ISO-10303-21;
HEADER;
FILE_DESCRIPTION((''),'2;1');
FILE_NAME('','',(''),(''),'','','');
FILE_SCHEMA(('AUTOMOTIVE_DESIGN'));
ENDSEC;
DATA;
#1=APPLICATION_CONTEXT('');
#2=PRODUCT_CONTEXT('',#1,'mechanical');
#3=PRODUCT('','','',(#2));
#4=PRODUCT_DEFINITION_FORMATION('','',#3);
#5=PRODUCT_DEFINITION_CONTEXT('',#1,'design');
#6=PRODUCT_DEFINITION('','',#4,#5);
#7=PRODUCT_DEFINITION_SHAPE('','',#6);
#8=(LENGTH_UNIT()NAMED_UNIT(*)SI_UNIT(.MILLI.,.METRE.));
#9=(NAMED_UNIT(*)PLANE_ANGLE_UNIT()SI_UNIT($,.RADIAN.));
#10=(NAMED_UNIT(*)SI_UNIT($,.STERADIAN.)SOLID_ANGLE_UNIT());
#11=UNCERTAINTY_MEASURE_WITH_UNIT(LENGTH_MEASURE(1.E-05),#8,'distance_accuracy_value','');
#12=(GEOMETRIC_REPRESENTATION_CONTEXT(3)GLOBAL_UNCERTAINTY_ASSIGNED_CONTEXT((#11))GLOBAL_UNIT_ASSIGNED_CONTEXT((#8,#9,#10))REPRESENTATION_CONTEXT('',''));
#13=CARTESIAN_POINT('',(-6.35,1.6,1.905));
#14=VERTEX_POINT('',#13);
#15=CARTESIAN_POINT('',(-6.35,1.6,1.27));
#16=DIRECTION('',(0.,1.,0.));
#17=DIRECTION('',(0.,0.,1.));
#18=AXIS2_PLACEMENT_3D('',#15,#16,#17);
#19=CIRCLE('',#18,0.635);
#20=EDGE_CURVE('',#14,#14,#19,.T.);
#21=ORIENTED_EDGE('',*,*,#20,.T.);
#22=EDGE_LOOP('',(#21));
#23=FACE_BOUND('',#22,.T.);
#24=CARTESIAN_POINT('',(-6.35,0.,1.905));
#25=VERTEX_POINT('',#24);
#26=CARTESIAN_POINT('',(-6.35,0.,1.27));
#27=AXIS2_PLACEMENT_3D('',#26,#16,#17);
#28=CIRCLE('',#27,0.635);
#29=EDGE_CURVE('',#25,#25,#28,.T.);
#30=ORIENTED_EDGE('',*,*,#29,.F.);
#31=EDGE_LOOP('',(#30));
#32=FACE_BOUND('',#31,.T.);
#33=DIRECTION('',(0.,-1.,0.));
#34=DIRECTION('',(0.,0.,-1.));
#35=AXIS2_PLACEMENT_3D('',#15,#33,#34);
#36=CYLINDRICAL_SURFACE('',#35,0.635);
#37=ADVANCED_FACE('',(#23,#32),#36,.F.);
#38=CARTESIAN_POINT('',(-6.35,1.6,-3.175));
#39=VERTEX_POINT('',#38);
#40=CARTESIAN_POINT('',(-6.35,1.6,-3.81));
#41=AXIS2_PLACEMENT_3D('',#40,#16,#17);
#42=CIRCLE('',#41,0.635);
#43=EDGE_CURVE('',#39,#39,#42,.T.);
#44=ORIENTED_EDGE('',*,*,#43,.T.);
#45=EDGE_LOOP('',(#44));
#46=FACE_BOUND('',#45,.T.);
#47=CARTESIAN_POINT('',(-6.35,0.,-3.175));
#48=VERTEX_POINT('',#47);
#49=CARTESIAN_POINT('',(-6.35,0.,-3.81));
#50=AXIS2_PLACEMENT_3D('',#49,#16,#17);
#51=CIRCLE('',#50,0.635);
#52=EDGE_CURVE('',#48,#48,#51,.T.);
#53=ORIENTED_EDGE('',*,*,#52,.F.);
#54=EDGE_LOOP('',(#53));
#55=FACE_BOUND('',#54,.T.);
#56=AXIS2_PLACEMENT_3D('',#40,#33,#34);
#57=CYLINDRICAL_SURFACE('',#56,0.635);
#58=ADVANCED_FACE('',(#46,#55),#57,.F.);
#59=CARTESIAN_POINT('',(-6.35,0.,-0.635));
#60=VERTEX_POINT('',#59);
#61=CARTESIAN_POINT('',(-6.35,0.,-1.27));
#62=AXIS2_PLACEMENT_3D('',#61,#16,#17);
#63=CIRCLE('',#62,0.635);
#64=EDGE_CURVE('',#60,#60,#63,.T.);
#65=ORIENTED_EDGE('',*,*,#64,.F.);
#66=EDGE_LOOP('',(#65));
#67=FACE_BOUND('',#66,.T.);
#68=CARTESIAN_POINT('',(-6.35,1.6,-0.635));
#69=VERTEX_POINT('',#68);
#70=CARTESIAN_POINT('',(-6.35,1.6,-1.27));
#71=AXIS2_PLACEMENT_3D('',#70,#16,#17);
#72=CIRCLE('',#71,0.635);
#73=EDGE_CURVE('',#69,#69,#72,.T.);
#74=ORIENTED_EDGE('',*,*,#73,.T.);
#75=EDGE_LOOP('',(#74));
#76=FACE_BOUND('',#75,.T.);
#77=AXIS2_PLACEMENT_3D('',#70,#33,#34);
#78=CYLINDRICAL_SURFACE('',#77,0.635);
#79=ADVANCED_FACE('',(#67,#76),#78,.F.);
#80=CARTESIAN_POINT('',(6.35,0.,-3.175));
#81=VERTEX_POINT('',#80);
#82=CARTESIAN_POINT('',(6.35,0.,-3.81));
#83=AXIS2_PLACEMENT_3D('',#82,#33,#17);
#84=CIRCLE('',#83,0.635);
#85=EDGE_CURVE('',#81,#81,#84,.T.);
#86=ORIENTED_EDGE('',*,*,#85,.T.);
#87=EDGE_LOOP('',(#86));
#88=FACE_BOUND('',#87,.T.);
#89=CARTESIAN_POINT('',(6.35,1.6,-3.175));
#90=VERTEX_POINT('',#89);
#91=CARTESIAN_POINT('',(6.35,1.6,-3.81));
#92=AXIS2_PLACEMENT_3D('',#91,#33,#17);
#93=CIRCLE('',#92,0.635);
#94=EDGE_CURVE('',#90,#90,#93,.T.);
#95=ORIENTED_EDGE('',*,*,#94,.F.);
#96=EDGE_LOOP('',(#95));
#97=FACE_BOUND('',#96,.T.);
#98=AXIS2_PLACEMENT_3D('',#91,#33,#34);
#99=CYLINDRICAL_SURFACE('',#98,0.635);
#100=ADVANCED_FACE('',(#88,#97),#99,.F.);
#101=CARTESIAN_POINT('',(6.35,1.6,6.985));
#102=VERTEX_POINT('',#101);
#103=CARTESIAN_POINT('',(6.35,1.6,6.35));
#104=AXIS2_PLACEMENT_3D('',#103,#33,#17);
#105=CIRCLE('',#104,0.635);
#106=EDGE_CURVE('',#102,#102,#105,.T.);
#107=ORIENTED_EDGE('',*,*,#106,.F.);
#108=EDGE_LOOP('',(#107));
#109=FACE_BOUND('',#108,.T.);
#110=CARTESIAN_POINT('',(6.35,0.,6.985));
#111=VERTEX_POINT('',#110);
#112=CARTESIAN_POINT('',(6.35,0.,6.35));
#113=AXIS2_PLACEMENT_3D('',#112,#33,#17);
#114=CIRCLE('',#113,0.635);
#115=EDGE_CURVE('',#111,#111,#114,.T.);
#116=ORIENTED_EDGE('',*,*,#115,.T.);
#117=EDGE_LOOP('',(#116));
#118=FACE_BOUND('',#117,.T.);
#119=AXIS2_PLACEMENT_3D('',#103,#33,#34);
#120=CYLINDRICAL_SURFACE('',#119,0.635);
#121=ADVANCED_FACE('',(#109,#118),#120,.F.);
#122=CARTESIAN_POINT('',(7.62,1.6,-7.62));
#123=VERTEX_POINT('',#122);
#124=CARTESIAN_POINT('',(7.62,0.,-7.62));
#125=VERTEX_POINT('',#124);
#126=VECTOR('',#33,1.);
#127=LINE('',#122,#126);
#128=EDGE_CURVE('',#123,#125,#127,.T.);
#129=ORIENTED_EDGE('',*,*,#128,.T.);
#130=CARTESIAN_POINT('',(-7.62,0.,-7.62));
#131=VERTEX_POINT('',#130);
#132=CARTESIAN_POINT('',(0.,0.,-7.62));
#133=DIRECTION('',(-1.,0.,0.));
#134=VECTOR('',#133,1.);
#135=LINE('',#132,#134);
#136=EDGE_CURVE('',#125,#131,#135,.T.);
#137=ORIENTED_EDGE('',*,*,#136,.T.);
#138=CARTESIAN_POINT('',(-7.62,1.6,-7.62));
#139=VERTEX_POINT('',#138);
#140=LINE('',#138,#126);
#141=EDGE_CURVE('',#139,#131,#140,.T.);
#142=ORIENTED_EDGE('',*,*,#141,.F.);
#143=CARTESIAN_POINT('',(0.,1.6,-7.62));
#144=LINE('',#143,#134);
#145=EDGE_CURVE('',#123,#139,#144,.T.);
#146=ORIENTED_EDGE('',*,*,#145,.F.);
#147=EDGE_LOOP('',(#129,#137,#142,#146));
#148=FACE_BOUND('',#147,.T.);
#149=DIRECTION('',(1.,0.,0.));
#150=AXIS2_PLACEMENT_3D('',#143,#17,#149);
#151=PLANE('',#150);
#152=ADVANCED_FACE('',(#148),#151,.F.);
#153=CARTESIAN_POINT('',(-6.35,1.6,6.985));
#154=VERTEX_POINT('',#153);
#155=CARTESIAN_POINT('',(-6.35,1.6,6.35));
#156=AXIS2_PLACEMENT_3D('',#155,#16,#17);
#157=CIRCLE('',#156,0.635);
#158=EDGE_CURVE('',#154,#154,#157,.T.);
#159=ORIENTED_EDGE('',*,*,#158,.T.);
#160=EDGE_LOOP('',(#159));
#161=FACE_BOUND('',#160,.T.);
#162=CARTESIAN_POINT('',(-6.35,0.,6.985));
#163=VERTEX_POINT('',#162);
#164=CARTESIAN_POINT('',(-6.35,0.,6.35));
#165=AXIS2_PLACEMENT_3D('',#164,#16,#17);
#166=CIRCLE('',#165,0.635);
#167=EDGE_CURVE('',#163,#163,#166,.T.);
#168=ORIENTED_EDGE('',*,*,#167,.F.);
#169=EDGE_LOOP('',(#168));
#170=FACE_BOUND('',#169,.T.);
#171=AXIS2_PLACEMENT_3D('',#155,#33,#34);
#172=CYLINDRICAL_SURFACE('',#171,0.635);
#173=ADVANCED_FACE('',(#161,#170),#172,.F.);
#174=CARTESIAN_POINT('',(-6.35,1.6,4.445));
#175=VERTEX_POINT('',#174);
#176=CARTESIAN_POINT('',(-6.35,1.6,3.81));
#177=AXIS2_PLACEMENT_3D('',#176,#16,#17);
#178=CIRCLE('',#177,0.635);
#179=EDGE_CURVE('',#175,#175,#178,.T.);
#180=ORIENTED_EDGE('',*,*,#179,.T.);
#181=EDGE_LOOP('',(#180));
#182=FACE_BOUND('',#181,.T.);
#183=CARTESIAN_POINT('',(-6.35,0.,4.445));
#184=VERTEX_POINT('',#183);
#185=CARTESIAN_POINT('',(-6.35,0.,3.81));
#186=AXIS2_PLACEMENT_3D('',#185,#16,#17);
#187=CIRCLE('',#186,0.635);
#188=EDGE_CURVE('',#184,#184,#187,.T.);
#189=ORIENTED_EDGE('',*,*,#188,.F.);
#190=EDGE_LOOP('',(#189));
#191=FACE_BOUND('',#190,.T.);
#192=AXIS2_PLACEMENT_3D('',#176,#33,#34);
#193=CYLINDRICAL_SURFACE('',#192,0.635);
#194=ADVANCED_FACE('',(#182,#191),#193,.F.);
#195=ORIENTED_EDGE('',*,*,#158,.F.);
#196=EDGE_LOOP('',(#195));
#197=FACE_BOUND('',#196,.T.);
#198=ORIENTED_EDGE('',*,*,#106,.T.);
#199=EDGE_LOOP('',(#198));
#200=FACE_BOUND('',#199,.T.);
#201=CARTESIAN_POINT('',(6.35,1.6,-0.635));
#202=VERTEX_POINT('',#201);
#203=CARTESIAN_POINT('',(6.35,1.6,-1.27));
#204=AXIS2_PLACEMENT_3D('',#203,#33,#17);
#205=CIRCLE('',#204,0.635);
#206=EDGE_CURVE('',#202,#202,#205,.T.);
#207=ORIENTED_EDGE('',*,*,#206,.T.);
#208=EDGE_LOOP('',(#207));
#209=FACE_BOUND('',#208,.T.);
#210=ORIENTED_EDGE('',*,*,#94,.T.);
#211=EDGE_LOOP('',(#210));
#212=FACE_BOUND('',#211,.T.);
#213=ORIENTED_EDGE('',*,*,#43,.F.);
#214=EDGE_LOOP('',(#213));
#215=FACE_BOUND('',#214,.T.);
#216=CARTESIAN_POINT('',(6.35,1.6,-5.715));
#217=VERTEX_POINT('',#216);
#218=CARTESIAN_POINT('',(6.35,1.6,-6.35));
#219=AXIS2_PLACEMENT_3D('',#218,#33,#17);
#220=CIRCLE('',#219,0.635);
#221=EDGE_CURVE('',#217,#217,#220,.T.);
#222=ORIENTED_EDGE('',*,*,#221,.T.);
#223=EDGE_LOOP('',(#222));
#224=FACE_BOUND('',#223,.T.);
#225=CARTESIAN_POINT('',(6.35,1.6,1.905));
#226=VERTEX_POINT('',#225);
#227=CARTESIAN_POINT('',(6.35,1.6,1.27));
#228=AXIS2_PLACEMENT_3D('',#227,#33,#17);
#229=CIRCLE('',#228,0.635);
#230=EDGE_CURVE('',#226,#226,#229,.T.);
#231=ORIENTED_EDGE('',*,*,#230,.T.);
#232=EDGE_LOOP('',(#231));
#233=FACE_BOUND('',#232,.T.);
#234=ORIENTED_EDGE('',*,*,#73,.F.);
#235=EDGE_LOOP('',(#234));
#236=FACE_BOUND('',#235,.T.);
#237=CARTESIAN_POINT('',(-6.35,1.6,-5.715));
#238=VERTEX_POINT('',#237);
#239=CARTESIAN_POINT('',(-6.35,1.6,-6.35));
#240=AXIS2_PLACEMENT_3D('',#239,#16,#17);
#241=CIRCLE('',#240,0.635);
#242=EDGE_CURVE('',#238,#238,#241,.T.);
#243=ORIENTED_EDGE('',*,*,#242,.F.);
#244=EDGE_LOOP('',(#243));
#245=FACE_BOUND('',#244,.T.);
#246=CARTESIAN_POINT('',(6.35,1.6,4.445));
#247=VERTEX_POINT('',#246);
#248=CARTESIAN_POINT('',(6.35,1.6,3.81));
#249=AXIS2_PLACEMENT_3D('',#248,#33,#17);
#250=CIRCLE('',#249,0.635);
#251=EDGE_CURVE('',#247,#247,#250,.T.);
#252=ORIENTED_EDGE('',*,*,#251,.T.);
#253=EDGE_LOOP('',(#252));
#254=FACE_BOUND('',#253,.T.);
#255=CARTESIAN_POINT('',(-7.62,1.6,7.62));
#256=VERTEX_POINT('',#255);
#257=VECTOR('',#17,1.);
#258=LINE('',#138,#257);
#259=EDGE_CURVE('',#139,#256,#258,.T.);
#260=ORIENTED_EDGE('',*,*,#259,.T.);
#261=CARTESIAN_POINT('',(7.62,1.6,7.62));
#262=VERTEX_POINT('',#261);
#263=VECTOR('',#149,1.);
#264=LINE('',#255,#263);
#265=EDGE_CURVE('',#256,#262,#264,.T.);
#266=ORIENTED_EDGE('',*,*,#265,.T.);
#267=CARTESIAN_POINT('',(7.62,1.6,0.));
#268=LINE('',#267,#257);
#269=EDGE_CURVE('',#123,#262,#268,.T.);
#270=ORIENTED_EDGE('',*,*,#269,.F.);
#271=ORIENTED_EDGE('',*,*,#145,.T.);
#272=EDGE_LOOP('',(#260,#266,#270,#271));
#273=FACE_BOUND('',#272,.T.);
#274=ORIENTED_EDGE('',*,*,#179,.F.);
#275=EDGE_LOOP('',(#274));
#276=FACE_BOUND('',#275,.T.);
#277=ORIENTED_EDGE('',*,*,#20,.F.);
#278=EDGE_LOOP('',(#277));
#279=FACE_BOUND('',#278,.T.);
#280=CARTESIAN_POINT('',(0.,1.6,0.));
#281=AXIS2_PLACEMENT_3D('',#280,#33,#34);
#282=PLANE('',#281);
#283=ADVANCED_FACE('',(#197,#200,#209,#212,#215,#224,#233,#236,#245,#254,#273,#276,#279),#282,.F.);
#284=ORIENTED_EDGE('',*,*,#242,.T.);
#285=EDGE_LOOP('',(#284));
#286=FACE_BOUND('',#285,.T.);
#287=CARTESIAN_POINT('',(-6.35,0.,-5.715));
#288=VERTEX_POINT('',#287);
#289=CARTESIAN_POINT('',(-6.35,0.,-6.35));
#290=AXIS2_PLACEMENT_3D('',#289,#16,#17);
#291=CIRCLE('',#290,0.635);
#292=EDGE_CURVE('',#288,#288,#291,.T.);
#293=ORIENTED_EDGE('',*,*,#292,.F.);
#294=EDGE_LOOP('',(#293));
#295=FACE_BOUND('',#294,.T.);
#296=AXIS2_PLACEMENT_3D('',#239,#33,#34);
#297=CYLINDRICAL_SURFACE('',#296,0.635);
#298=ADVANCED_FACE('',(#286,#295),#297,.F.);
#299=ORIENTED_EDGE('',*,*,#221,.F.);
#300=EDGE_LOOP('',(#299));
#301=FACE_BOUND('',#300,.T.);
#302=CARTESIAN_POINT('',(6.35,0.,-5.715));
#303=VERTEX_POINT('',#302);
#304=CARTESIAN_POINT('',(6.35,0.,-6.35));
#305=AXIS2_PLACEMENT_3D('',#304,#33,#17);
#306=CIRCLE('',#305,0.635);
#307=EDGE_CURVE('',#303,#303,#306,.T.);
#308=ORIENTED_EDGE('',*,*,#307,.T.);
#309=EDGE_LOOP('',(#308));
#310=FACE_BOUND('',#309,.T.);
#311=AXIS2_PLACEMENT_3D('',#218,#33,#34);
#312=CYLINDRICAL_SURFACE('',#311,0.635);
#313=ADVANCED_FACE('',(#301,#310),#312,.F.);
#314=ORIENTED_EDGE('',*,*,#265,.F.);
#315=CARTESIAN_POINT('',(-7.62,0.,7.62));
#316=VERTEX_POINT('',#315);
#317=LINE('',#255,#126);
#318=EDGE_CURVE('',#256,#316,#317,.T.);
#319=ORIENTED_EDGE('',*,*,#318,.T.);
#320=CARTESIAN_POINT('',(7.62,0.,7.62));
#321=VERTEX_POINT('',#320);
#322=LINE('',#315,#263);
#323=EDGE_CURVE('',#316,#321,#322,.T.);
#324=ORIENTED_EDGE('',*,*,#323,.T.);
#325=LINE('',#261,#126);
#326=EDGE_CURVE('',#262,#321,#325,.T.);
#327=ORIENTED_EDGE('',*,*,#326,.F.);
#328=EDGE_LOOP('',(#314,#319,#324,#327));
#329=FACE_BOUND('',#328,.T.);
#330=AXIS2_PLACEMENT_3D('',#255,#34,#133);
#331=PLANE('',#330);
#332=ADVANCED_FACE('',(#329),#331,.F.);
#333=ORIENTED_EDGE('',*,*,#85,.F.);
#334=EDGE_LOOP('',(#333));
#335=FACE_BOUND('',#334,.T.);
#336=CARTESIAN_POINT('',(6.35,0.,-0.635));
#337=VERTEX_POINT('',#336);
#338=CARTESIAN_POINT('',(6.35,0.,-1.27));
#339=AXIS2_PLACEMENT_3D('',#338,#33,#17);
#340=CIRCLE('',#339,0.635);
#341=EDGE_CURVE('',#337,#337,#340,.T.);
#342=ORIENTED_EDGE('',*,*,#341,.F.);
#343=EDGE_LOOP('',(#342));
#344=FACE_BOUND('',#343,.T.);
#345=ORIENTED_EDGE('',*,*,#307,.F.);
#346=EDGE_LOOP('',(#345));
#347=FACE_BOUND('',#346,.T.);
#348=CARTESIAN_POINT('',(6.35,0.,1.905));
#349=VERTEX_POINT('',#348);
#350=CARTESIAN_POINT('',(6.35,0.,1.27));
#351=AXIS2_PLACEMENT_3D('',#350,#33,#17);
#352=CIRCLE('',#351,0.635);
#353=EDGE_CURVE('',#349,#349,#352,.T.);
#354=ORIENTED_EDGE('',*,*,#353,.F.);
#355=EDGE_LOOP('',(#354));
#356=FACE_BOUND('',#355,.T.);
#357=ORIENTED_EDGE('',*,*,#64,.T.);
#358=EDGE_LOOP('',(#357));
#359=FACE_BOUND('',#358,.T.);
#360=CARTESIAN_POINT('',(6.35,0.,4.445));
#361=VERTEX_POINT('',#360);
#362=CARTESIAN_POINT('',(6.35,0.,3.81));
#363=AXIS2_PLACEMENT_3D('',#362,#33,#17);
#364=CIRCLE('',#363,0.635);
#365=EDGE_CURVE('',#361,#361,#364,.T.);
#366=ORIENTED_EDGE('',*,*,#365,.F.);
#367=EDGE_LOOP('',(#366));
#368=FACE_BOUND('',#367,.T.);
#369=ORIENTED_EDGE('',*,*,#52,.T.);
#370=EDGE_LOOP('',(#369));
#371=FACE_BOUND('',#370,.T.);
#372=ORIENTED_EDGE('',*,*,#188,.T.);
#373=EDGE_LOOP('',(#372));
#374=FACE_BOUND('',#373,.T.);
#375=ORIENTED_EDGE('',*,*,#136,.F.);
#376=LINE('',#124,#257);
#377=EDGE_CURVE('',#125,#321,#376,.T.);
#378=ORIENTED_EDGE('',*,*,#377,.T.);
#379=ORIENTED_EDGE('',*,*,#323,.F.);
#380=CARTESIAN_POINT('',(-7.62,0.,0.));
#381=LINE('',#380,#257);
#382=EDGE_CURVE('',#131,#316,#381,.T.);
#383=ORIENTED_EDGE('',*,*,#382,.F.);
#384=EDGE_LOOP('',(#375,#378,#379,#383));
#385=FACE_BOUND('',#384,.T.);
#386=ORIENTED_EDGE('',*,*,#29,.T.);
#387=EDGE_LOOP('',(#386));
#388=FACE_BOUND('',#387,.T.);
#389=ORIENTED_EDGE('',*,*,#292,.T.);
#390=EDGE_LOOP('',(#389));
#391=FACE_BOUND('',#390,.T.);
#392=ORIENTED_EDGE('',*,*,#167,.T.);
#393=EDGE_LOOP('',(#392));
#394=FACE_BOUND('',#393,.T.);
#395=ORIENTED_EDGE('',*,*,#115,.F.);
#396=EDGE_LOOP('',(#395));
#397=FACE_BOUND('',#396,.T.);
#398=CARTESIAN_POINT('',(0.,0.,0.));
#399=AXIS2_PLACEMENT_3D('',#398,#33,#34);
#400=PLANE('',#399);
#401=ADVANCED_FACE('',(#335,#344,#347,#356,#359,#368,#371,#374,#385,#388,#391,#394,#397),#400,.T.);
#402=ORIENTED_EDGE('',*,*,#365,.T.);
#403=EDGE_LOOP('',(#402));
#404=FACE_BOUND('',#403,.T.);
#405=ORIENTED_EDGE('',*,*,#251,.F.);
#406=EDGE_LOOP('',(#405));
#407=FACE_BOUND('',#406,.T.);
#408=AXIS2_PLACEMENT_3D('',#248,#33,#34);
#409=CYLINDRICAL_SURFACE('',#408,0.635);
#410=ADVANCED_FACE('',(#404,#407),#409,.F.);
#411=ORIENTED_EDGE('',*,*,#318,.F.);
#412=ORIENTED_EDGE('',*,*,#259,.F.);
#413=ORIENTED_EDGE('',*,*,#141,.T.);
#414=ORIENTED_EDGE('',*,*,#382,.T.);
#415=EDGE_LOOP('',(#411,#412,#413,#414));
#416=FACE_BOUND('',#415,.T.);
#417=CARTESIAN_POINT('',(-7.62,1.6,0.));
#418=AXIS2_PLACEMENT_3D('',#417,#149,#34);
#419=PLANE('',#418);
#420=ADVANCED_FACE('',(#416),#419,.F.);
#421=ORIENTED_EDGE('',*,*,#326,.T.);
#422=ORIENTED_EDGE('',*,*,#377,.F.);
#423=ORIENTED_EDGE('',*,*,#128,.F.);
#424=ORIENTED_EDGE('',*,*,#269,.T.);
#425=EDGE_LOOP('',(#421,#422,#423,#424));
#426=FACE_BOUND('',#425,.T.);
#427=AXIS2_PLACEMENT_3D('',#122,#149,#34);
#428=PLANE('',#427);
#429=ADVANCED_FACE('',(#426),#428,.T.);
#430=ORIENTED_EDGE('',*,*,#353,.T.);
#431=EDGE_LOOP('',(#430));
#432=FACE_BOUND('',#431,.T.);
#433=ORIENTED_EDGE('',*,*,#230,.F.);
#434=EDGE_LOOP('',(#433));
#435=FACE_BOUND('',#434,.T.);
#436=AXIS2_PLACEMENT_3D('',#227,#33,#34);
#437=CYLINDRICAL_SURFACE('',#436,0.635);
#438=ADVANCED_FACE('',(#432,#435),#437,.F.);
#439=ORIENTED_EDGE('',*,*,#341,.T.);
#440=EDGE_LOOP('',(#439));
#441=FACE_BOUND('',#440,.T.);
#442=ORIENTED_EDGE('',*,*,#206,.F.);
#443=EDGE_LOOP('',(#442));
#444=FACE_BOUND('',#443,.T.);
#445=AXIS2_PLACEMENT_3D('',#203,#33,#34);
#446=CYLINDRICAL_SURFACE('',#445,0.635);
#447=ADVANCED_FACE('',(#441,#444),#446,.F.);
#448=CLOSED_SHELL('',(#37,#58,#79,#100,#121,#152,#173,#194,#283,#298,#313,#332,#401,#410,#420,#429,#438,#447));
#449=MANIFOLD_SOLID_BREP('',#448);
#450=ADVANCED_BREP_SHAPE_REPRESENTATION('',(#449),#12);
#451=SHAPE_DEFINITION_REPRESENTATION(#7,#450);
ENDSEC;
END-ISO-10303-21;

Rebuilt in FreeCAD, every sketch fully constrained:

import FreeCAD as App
import Part
import Sketcher
Q = App.Units.Quantity

doc = App.newDocument("Part")
body = doc.addObject("PartDesign::Body", "Body")

sketch1 = doc.addObject("Sketcher::SketchObject", "Sketch")
body.addObject(sketch1)
sketch1.AttachmentSupport = (doc.XZ_Plane, [""])
sketch1.MapMode = "FlatFace"
sketch1.addGeometry([
    Part.LineSegment(App.Vector(0, 7.6, 0), App.Vector(0, -7.6, 0)),
    Part.LineSegment(App.Vector(0, -7.6, 0), App.Vector(-7.6, -7.6, 0)),
    Part.LineSegment(App.Vector(-7.6, -7.6, 0), App.Vector(-7.6, 7.6, 0)),
    Part.LineSegment(App.Vector(-7.6, 7.6, 0), App.Vector(0, 7.6, 0)),
    Part.Circle(App.Vector(-6.3, 6.3, 0), App.Vector(0, 0, 1), 0.6),
    Part.Circle(App.Vector(-6.3, 3.8, 0), App.Vector(0, 0, 1), 0.6),
    Part.Circle(App.Vector(-6.3, 1.3, 0), App.Vector(0, 0, 1), 0.6),
    Part.Circle(App.Vector(-6.3, -1.3, 0), App.Vector(0, 0, 1), 0.6),
    Part.Circle(App.Vector(-6.3, -3.8, 0), App.Vector(0, 0, 1), 0.6),
    Part.Circle(App.Vector(-6.3, -6.3, 0), App.Vector(0, 0, 1), 0.6),
], False)
sketch1.addConstraint([
    Sketcher.Constraint("Coincident", 0, 2, 1, 1),
    Sketcher.Constraint("Coincident", 1, 2, 2, 1),
    Sketcher.Constraint("Coincident", 2, 2, 3, 1),
    Sketcher.Constraint("Coincident", 3, 2, 0, 1),
    Sketcher.Constraint("Vertical", 0),
    Sketcher.Constraint("Horizontal", 1),
    Sketcher.Constraint("Vertical", 2),
    Sketcher.Constraint("Horizontal", 3),
    Sketcher.Constraint("Equal", 4, 5),
    Sketcher.Constraint("Equal", 5, 6),
    Sketcher.Constraint("Equal", 6, 7),
    Sketcher.Constraint("Equal", 7, 8),
    Sketcher.Constraint("Equal", 8, 9),
    Sketcher.Constraint("Symmetric", 0, 2, 3, 2, -1, 1),
    Sketcher.Constraint("Symmetric", 6, 3, 7, 3, -1),
    Sketcher.Constraint("Symmetric", 5, 3, 8, 3, -1),
    Sketcher.Constraint("Symmetric", 4, 3, 9, 3, -1),
    Sketcher.Constraint("Vertical", 4, 3, 5, 3),
    Sketcher.Constraint("Vertical", 5, 3, 6, 3),
    Sketcher.Constraint("Diameter", 4, Q("0.05 in")),
    Sketcher.Constraint("DistanceX", 1, 2, 1, 1, Q("0.3 in")),
    Sketcher.Constraint("DistanceY", 0, 2, 0, 1, Q("0.6 in")),
    Sketcher.Constraint("DistanceY", 5, 3, 4, 3, Q("0.1 in")),
    Sketcher.Constraint("DistanceY", 6, 3, 5, 3, Q("0.1 in")),
    Sketcher.Constraint("DistanceY", 7, 3, 6, 3, Q("0.1 in")),
    Sketcher.Constraint("DistanceX", 4, 3, -1, 1, Q("0.25 in")),
])
pad1 = doc.addObject("PartDesign::Pad", "Pad")
body.addObject(pad1)
pad1.Profile = sketch1
pad1.Length = 1.6
pad1.Reversed = True
doc.recompute()

mirrored = doc.addObject("PartDesign::Mirrored", "Mirrored")
body.addObject(mirrored)
mirrored.Originals = [pad1]
mirrored.MirrorPlane = (doc.YZ_Plane, [""])
body.Tip = mirrored

doc.recompute()
